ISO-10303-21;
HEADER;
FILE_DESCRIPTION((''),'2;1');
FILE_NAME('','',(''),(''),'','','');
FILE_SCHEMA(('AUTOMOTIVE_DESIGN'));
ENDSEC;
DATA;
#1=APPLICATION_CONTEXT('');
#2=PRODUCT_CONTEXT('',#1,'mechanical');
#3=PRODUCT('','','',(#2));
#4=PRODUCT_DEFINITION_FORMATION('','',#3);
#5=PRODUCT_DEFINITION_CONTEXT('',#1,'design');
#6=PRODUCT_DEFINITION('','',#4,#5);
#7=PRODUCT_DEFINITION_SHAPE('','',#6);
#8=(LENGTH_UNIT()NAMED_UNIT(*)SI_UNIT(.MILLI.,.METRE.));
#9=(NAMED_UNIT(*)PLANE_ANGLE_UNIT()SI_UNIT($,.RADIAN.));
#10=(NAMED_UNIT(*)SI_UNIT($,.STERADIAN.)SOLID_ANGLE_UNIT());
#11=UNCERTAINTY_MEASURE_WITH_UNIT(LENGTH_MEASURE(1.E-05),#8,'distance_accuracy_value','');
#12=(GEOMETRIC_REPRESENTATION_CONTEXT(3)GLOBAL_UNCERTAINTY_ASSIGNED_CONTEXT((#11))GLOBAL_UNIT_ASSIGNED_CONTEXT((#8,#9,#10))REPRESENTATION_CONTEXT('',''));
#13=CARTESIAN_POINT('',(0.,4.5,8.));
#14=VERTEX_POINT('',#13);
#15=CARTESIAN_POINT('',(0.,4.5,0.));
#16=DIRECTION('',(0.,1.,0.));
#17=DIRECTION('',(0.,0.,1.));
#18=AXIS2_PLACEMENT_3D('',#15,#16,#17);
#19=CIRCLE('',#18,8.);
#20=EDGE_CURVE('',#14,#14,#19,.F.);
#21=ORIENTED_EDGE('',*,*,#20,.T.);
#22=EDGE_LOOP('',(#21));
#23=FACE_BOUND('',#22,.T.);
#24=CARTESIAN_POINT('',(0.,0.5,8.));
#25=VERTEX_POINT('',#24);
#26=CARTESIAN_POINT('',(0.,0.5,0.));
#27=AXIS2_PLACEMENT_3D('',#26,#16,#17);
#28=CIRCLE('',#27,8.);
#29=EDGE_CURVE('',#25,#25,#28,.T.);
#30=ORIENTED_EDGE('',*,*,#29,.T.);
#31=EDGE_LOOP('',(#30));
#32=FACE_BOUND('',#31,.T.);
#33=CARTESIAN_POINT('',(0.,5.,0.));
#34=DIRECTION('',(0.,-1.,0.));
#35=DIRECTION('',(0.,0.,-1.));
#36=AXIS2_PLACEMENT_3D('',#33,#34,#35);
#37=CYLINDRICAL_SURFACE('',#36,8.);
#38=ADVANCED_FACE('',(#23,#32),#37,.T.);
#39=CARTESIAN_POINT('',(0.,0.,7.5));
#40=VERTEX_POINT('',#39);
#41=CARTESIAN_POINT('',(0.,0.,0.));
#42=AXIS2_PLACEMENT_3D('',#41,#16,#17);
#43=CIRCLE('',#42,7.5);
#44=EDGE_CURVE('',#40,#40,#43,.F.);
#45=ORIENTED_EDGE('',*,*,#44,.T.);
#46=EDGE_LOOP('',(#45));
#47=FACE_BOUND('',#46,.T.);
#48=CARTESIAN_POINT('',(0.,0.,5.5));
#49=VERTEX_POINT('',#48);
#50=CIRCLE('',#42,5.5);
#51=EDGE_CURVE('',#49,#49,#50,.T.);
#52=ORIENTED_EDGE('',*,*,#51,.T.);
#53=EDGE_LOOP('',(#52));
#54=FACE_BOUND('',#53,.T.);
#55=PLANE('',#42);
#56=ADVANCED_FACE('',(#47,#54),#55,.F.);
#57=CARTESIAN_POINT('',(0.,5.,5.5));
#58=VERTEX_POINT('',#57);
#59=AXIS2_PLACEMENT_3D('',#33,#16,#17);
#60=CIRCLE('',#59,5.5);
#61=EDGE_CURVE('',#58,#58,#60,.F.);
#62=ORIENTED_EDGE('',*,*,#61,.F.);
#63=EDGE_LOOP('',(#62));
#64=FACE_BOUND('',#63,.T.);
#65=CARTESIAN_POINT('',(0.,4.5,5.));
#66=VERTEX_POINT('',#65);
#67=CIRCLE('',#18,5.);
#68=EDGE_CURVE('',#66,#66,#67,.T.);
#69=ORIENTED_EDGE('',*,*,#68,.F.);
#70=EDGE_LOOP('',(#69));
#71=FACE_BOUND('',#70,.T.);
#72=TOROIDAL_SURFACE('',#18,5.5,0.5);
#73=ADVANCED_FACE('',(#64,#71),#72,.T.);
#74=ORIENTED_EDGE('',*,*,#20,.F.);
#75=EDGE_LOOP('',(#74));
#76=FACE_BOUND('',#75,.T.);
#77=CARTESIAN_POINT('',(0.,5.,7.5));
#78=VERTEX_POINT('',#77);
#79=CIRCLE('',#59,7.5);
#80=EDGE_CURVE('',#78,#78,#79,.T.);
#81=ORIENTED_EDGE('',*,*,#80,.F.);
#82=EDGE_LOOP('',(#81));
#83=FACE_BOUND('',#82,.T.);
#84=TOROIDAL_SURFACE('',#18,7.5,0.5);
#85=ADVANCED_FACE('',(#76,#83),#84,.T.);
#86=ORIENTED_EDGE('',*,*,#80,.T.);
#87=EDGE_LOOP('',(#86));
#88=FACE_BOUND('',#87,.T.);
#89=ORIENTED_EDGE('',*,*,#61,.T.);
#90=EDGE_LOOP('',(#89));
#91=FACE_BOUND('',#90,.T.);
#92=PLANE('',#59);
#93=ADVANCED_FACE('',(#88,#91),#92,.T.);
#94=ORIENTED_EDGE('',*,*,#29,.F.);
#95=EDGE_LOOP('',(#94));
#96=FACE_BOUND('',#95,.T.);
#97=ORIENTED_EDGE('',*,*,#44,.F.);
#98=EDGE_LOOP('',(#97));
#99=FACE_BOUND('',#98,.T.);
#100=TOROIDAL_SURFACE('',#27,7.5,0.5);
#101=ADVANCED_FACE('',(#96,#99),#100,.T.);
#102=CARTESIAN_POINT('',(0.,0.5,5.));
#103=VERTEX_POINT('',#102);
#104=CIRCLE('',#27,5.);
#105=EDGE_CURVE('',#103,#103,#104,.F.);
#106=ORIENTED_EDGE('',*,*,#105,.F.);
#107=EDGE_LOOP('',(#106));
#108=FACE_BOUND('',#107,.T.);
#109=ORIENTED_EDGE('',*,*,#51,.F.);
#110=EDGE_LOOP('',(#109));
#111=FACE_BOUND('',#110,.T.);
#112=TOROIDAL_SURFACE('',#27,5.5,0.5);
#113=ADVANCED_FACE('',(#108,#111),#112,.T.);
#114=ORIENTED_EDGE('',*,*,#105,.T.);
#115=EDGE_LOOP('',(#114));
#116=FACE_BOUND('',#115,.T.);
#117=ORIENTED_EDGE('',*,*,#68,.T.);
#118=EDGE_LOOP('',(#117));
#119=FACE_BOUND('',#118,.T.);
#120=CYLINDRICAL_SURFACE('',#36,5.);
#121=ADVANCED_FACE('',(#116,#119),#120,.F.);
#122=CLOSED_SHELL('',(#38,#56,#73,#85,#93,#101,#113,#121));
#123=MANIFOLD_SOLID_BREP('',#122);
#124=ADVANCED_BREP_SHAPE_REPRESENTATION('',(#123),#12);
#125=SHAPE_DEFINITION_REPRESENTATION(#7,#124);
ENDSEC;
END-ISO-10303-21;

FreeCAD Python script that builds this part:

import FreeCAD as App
import Part
import Sketcher
from FreeCAD import Vector


def edges_at(feature, points):
    """Names of the edges that pass closest to the given points."""
    edges = feature.Shape.Edges
    near = lambda p: min(range(len(edges)), key=lambda i: edges[i].distToShape(Part.Vertex(*p))[0])
    return sorted({f"Edge{near(p) + 1}" for p in points})

doc = App.newDocument("Part")
params = doc.addObject("Spreadsheet::Sheet", "Params")
for row, (alias, value) in enumerate([
    ("sketch1_diameter", "16 mm"),
    ("sketch1_diameter2", "10 mm"),
    ("pad1_length", "5 mm"),
    ("fillet_radius", "0.5 mm"),
], start=1):
    params.set(f"A{row}", alias)
    params.set(f"B{row}", "=" + value)
    params.setAlias(f"B{row}", alias)

body = doc.addObject("PartDesign::Body", "Body")

# Sketch on XZ plane
sketch1 = body.newObject("Sketcher::SketchObject", "Sketch")
sketch1.AttachmentSupport = (doc.getObject("XZ_Plane"), [""])
sketch1.MapMode = "FlatFace"
sketch1.addGeometry(Part.Circle(Vector(0, 0, 0), Vector(0, 0, 1), 8), False)
sketch1.addGeometry(Part.Circle(Vector(0, 0, 0), Vector(0, 0, 1), 5), False)
sketch1.addConstraint(Sketcher.Constraint("Coincident", 0, 3, -1, 1))
sketch1.addConstraint(Sketcher.Constraint("Coincident", 1, 3, -1, 1))
sketch1.addConstraint(Sketcher.Constraint("Diameter", 0, 16.0))
sketch1.addConstraint(Sketcher.Constraint("Diameter", 1, 10.0))
sketch1.setExpression("Constraints[2]", "Params.sketch1_diameter")
sketch1.setExpression("Constraints[3]", "Params.sketch1_diameter2")
pad1 = body.newObject("PartDesign::Pad", "Pad")
pad1.Profile = sketch1
pad1.setExpression("Length", "Params.pad1_length")
pad1.Reversed = True
doc.recompute()

fillet = body.newObject("PartDesign::Fillet", "Fillet")
fillet.Base = (pad1, edges_at(pad1, [
    (0, 0, -8),
    (0, 5, -8),
    (0, 0, -5),
    (0, 5, -5),
]))
fillet.setExpression("Radius", "Params.fillet_radius")

doc.recompute()
